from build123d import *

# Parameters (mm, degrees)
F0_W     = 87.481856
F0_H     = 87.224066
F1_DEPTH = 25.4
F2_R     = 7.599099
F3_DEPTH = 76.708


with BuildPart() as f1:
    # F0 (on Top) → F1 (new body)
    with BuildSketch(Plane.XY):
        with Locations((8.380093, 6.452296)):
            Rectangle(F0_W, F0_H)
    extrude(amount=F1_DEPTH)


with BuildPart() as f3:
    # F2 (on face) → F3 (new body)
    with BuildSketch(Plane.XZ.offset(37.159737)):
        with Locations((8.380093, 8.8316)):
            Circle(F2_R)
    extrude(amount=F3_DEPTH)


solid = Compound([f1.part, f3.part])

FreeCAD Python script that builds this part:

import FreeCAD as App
import Part
import Sketcher
Q = App.Units.Quantity


def add_polygon(sketch, points):
    """Adds a closed chain of lines whose ends are joined by coincident constraints."""
    first, n = sketch.GeometryCount, len(points)
    for a, b in zip(points, points[1:] + points[:1]):
        sketch.addGeometry(Part.LineSegment(App.Vector(*a, 0), App.Vector(*b, 0)), False)
    for i in range(n):
        sketch.addConstraint(Sketcher.Constraint("Coincident", first + i, 2, first + (i + 1) % n, 1))

doc = App.newDocument("Part")
body = doc.addObject("PartDesign::Body", "Body")

# Sketch on XY plane
sketch1 = body.newObject("Sketcher::SketchObject", "Sketch")
sketch1.AttachmentSupport = (doc.getObject("XY_Plane"), [""])
sketch1.MapMode = "FlatFace"
add_polygon(sketch1, [(-35, 50), (-35, -37), (52, -37), (52, 50)])  # lines 0-3
sketch1.addConstraint([
    Sketcher.Constraint("Vertical", 0),
    Sketcher.Constraint("Horizontal", 1),
    Sketcher.Constraint("Vertical", 2),
    Sketcher.Constraint("Horizontal", 3),
    Sketcher.Constraint("DistanceX", 1, 1, 1, 2, 87.481856),
    Sketcher.Constraint("DistanceY", 0, 2, 0, 1, 87.224066),
    Sketcher.Constraint("DistanceX", -1, 1, 1, 2, 52.121021),
    Sketcher.Constraint("DistanceY", -1, 1, 2, 2, 50.064329),
])
pad1 = body.newObject("PartDesign::Pad", "Pad")
pad1.Profile = sketch1
pad1.Length = Q("1 in")
body2 = doc.addObject("PartDesign::Body", "Body001")

# Sketch on XZ plane
sketch2 = body2.newObject("Sketcher::SketchObject", "Sketch001")
sketch2.AttachmentSupport = (doc.getObject("XZ_Plane001"), [""])
sketch2.MapMode = "FlatFace"
sketch2.AttachmentOffset = App.Placement(App.Vector(0, 0, 37.159737), App.Rotation())
sketch2.addGeometry(Part.Circle(App.Vector(8, 9, 0), App.Vector(0, 0, 1), 8), False)
sketch2.addConstraint([
    Sketcher.Constraint("Diameter", 0, 15.198198),
    Sketcher.Constraint("DistanceY", -1, 1, 0, 3, 8.8316),
    Sketcher.Constraint("DistanceX", -1, 1, 0, 3, 8.380093),
])
pad2 = body2.newObject("PartDesign::Pad", "Pad001")
pad2.Profile = sketch2
pad2.Length = Q("3.02 in")

doc.recompute()
